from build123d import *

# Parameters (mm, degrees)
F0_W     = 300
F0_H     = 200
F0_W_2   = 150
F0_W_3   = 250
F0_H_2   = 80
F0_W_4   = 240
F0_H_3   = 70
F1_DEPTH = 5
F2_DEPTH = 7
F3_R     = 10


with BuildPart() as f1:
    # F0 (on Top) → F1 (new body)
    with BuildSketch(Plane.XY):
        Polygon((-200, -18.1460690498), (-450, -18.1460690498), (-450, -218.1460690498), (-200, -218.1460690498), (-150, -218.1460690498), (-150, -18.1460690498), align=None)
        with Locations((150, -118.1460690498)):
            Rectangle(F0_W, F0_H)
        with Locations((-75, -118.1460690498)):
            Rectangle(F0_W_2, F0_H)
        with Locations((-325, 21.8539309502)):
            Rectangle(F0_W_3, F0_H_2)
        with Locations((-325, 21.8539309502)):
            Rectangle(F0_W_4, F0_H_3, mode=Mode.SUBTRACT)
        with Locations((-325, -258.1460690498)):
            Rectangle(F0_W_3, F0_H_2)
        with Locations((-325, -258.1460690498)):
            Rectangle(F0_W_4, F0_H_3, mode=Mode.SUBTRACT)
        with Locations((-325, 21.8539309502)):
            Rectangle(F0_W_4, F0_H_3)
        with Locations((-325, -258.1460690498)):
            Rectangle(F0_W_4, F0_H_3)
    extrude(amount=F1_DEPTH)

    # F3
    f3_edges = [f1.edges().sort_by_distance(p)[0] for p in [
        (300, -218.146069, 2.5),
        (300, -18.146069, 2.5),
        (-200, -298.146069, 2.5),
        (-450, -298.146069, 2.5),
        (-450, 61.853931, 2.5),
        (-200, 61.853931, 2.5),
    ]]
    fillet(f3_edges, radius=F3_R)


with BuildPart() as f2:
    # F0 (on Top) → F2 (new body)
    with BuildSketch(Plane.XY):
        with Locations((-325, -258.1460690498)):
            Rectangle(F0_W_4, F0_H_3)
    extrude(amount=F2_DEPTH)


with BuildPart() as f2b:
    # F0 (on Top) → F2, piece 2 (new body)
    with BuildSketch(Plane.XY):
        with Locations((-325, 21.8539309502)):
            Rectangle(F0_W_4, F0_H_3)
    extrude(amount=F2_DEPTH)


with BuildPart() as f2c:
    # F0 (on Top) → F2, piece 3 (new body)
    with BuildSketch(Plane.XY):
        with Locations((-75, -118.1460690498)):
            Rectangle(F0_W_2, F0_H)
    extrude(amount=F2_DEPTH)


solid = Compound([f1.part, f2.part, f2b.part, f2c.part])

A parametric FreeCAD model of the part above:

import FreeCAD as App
import Part
import Sketcher

V = App.Vector
Q = App.Units.Quantity


def edges_at(feature, points):
    """Names of the edges that pass closest to the given points."""
    edges = feature.Shape.Edges
    near = lambda p: min(range(len(edges)), key=lambda i: edges[i].distToShape(Part.Vertex(*p))[0])
    return sorted({f"Edge{near(p) + 1}" for p in points})

doc = App.newDocument("Part")
params = doc.addObject("Spreadsheet::Sheet", "Params")
for row, (alias, value) in enumerate([
    ("sketch1_width", "500 mm"),
    ("sketch1_width2", "250 mm"),
    ("sketch1_height", "200 mm"),
    ("sketch1_height2", "80 mm"),
    ("pad1_length", "5 mm"),
    ("fillet_radius", "10 mm"),
    ("sketch2_width", "240 mm"),
    ("sketch2_height", "70 mm"),
    ("pad2_length", "7 mm"),
    ("sketch3_width", "240 mm"),
    ("sketch3_height", "70 mm"),
    ("pad3_length", "7 mm"),
    ("sketch4_width", "150 mm"),
    ("sketch4_height", "200 mm"),
    ("pad4_length", "7 mm"),
], start=1):
    params.set(f"A{row}", alias)
    params.set(f"B{row}", "=" + value)
    params.setAlias(f"B{row}", alias)

body = doc.addObject("PartDesign::Body", "Body")

sketch1 = doc.addObject("Sketcher::SketchObject", "Sketch")
body.addObject(sketch1)
sketch1.AttachmentSupport = (doc.XY_Plane, [""])
sketch1.MapMode = "FlatFace"
sketch1.addGeometry([
    Part.LineSegment(V(-200, -218, 0), V(300, -218, 0)),
    Part.LineSegment(V(300, -218, 0), V(300, -18, 0)),
    Part.LineSegment(V(300, -18, 0), V(-200, -18, 0)),
    Part.LineSegment(V(-200, -18, 0), V(-200, 62, 0)),
    Part.LineSegment(V(-200, 62, 0), V(-450, 62, 0)),
    Part.LineSegment(V(-450, 62, 0), V(-450, -298, 0)),
    Part.LineSegment(V(-450, -298, 0), V(-200, -298, 0)),
    Part.LineSegment(V(-200, -298, 0), V(-200, -218, 0)),
], False)
sketch1.addConstraint([
    Sketcher.Constraint("Coincident", 0, 2, 1, 1),
    Sketcher.Constraint("Coincident", 1, 2, 2, 1),
    Sketcher.Constraint("Coincident", 2, 2, 3, 1),
    Sketcher.Constraint("Coincident", 3, 2, 4, 1),
    Sketcher.Constraint("Coincident", 4, 2, 5, 1),
    Sketcher.Constraint("Coincident", 5, 2, 6, 1),
    Sketcher.Constraint("Coincident", 6, 2, 7, 1),
    Sketcher.Constraint("Coincident", 7, 2, 0, 1),
    Sketcher.Constraint("Horizontal", 0),
    Sketcher.Constraint("Vertical", 1),
    Sketcher.Constraint("Horizontal", 2),
    Sketcher.Constraint("Vertical", 3),
    Sketcher.Constraint("Horizontal", 4),
    Sketcher.Constraint("Vertical", 5),
    Sketcher.Constraint("Horizontal", 6),
    Sketcher.Constraint("Vertical", 7),
    Sketcher.Constraint("Vertical", 3, 2, 6, 2),
    Sketcher.Constraint("Equal", 3, 7),
    Sketcher.Constraint("DistanceX", 0, 1, 0, 2, Q("500 mm")),
    Sketcher.Constraint("DistanceX", 4, 2, 4, 1, Q("250 mm")),
    Sketcher.Constraint("DistanceY", 1, 1, 1, 2, Q("200 mm")),
    Sketcher.Constraint("DistanceY", 3, 1, 3, 2, Q("80 mm")),
    Sketcher.Constraint("DistanceX", -1, 1, 0, 2, Q("300 mm")),
    Sketcher.Constraint("DistanceY", 0, 2, -1, 1, Q("218.146069 mm")),
])
sketch1.setExpression("Constraints[18]", "Params.sketch1_width")
sketch1.setExpression("Constraints[19]", "Params.sketch1_width2")
sketch1.setExpression("Constraints[20]", "Params.sketch1_height")
sketch1.setExpression("Constraints[21]", "Params.sketch1_height2")
pad1 = doc.addObject("PartDesign::Pad", "Pad")
body.addObject(pad1)
pad1.Profile = sketch1
pad1.setExpression("Length", "Params.pad1_length")
doc.recompute()

fillet = doc.addObject("PartDesign::Fillet", "Fillet")
body.addObject(fillet)
fillet.Base = (pad1, edges_at(pad1, [
    (300, -218.146, 2.5),
    (300, -18.146, 2.5),
    (-200, -298.146, 2.5),
    (-450, -298.146, 2.5),
    (-450, 61.854, 2.5),
    (-200, 61.854, 2.5),
]))
fillet.setExpression("Radius", "Params.fillet_radius")
body2 = doc.addObject("PartDesign::Body", "Body001")

sketch2 = doc.addObject("Sketcher::SketchObject", "Sketch001")
body2.addObject(sketch2)
sketch2.AttachmentSupport = (doc.getObject("XY_Plane001"), [""])
sketch2.MapMode = "FlatFace"
sketch2.addGeometry([
    Part.LineSegment(V(-445, -223, 0), V(-445, -293, 0)),
    Part.LineSegment(V(-445, -293, 0), V(-205, -293, 0)),
    Part.LineSegment(V(-205, -293, 0), V(-205, -223, 0)),
    Part.LineSegment(V(-205, -223, 0), V(-445, -223, 0)),
], False)
sketch2.addConstraint([
    Sketcher.Constraint("Coincident", 0, 2, 1, 1),
    Sketcher.Constraint("Coincident", 1, 2, 2, 1),
    Sketcher.Constraint("Coincident", 2, 2, 3, 1),
    Sketcher.Constraint("Coincident", 3, 2, 0, 1),
    Sketcher.Constraint("Vertical", 0),
    Sketcher.Constraint("Horizontal", 1),
    Sketcher.Constraint("Vertical", 2),
    Sketcher.Constraint("Horizontal", 3),
    Sketcher.Constraint("DistanceX", 1, 1, 1, 2, Q("240 mm")),
    Sketcher.Constraint("DistanceY", 0, 2, 0, 1, Q("70 mm")),
    Sketcher.Constraint("DistanceX", 0, 2, -1, 1, Q("445 mm")),
    Sketcher.Constraint("DistanceY", 0, 2, -1, 1, Q("293.146069 mm")),
])
sketch2.setExpression("Constraints[8]", "Params.sketch2_width")
sketch2.setExpression("Constraints[9]", "Params.sketch2_height")
pad2 = doc.addObject("PartDesign::Pad", "Pad001")
body2.addObject(pad2)
pad2.Profile = sketch2
pad2.setExpression("Length", "Params.pad2_length")
body3 = doc.addObject("PartDesign::Body", "Body002")

sketch3 = doc.addObject("Sketcher::SketchObject", "Sketch002")
body3.addObject(sketch3)
sketch3.AttachmentSupport = (doc.getObject("XY_Plane002"), [""])
sketch3.MapMode = "FlatFace"
sketch3.addGeometry([
    Part.LineSegment(V(-445, 57, 0), V(-445, -13, 0)),
    Part.LineSegment(V(-445, -13, 0), V(-205, -13, 0)),
    Part.LineSegment(V(-205, -13, 0), V(-205, 57, 0)),
    Part.LineSegment(V(-205, 57, 0), V(-445, 57, 0)),
], False)
sketch3.addConstraint([
    Sketcher.Constraint("Coincident", 0, 2, 1, 1),
    Sketcher.Constraint("Coincident", 1, 2, 2, 1),
    Sketcher.Constraint("Coincident", 2, 2, 3, 1),
    Sketcher.Constraint("Coincident", 3, 2, 0, 1),
    Sketcher.Constraint("Vertical", 0),
    Sketcher.Constraint("Horizontal", 1),
    Sketcher.Constraint("Vertical", 2),
    Sketcher.Constraint("Horizontal", 3),
    Sketcher.Constraint("DistanceX", 1, 1, 1, 2, Q("240 mm")),
    Sketcher.Constraint("DistanceY", 0, 2, 0, 1, Q("70 mm")),
    Sketcher.Constraint("DistanceX", 0, 2, -1, 1, Q("445 mm")),
    Sketcher.Constraint("DistanceY", 0, 2, -1, 1, Q("13.146069 mm")),
])
sketch3.setExpression("Constraints[8]", "Params.sketch3_width")
sketch3.setExpression("Constraints[9]", "Params.sketch3_height")
pad3 = doc.addObject("PartDesign::Pad", "Pad002")
body3.addObject(pad3)
pad3.Profile = sketch3
pad3.setExpression("Length", "Params.pad3_length")
body4 = doc.addObject("PartDesign::Body", "Body003")

sketch4 = doc.addObject("Sketcher::SketchObject", "Sketch003")
body4.addObject(sketch4)
sketch4.AttachmentSupport = (doc.getObject("XY_Plane003"), [""])
sketch4.MapMode = "FlatFace"
sketch4.addGeometry([
    Part.LineSegment(V(-150, -18, 0), V(-150, -218, 0)),
    Part.LineSegment(V(-150, -218, 0), V(0, -218, 0)),
    Part.LineSegment(V(0, -218, 0), V(0, -18, 0)),
    Part.LineSegment(V(0, -18, 0), V(-150, -18, 0)),
], False)
sketch4.addConstraint([
    Sketcher.Constraint("Coincident", 0, 2, 1, 1),
    Sketcher.Constraint("Coincident", 1, 2, 2, 1),
    Sketcher.Constraint("Coincident", 2, 2, 3, 1),
    Sketcher.Constraint("Coincident", 3, 2, 0, 1),
    Sketcher.Constraint("Vertical", 0),
    Sketcher.Constraint("Horizontal", 1),
    Sketcher.Constraint("Vertical", 2),
    Sketcher.Constraint("Horizontal", 3),
    Sketcher.Constraint("PointOnObject", 1, 2, -2),
    Sketcher.Constraint("DistanceX", 1, 1, 1, 2, Q("150 mm")),
    Sketcher.Constraint("DistanceY", 0, 2, 0, 1, Q("200 mm")),
    Sketcher.Constraint("DistanceY", 0, 2, -1, 1, Q("218.146069 mm")),
])
sketch4.setExpression("Constraints[9]", "Params.sketch4_width")
sketch4.setExpression("Constraints[10]", "Params.sketch4_height")
pad4 = doc.addObject("PartDesign::Pad", "Pad003")
body4.addObject(pad4)
pad4.Profile = sketch4
pad4.setExpression("Length", "Params.pad4_length")

doc.recompute()
